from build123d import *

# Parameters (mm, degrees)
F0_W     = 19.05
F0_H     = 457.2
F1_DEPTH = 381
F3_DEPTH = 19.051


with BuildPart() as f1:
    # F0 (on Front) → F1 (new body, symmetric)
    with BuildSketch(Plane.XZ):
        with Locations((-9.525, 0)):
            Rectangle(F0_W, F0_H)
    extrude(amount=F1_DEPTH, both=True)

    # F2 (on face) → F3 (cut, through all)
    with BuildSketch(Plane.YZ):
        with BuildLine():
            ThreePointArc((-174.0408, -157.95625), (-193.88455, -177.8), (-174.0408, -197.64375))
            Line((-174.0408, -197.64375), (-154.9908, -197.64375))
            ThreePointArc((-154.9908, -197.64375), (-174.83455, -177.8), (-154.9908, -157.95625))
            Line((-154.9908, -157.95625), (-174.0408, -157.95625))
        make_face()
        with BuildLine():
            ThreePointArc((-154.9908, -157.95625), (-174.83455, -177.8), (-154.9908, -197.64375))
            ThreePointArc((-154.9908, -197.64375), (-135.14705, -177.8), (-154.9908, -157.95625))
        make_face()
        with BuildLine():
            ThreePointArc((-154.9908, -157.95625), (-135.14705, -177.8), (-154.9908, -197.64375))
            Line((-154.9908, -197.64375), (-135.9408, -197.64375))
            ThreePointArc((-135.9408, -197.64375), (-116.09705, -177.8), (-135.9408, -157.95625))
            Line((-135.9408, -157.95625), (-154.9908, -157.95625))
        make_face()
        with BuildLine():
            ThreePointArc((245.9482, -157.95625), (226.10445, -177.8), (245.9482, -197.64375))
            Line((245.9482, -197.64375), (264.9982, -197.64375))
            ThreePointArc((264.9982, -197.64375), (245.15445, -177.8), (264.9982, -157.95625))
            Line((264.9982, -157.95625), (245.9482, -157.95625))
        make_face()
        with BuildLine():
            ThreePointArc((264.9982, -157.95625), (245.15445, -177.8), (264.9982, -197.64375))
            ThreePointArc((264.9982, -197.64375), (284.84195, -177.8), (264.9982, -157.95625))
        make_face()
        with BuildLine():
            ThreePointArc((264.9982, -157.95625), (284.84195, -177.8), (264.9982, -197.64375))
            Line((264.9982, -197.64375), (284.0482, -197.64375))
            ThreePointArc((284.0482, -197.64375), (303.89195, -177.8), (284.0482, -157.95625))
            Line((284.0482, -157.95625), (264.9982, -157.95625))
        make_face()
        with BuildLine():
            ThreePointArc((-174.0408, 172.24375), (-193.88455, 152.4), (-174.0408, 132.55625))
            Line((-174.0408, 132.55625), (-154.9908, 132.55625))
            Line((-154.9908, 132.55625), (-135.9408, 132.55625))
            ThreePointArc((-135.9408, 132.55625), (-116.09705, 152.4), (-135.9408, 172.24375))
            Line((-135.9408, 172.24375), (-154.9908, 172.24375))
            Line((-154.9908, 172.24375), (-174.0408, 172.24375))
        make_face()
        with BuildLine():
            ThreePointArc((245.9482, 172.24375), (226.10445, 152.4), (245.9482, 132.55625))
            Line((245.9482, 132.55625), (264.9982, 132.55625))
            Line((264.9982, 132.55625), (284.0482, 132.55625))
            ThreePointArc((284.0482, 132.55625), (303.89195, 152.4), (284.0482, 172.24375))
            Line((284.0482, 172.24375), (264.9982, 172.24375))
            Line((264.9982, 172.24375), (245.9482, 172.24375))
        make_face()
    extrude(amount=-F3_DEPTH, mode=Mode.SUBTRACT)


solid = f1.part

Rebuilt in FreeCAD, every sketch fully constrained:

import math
import FreeCAD as App
import Part
import Sketcher

V = App.Vector
Q = App.Units.Quantity


def add_polygon(sketch, points):
    """Adds a closed chain of lines whose ends are joined by coincident constraints."""
    first, n = sketch.GeometryCount, len(points)
    for a, b in zip(points, points[1:] + points[:1]):
        sketch.addGeometry(Part.LineSegment(App.Vector(*a, 0), App.Vector(*b, 0)), False)
    for i in range(n):
        sketch.addConstraint(Sketcher.Constraint("Coincident", first + i, 2, first + (i + 1) % n, 1))

doc = App.newDocument("Part")
body = doc.addObject("PartDesign::Body", "Body")

# Sketch on XZ plane
sketch1 = body.newObject("Sketcher::SketchObject", "Sketch")
sketch1.AttachmentSupport = (doc.getObject("XZ_Plane"), [""])
sketch1.MapMode = "FlatFace"
add_polygon(sketch1, [(-19, 229), (-19, -229), (0, -229), (0, 229)])  # lines 0-3
sketch1.addConstraint([
    Sketcher.Constraint("Vertical", 0),
    Sketcher.Constraint("Horizontal", 1),
    Sketcher.Constraint("Vertical", 2),
    Sketcher.Constraint("Horizontal", 3),
    Sketcher.Constraint("Symmetric", 1, 2, 2, 2, -1, 1),
    Sketcher.Constraint("DistanceY", 0, 2, 0, 1, Q("18 in")),
    Sketcher.Constraint("DistanceX", 1, 1, 1, 2, Q("0.75 in")),
])
pad1 = body.newObject("PartDesign::Pad", "Pad")
pad1.Profile = sketch1
pad1.Length = Q("30 in")
pad1.Midplane = True

# Sketch on YZ plane
sketch2 = body.newObject("Sketcher::SketchObject", "Sketch001")
sketch2.AttachmentSupport = (doc.getObject("YZ_Plane"), [""])
sketch2.MapMode = "FlatFace"
sketch2.addGeometry([
    Part.ArcOfCircle(Part.Circle(V(-174, -178, 0), V(0, 0, 1), 20), math.radians(90), math.radians(270)),  # 0
    Part.LineSegment(V(-174, -198, 0), V(-136, -198, 0)),  # 1
    Part.ArcOfCircle(Part.Circle(V(-136, -178, 0), V(0, 0, 1), 20), math.radians(-90), math.radians(90)),  # 2
    Part.LineSegment(V(-136, -158, 0), V(-174, -158, 0)),  # 3
    Part.ArcOfCircle(Part.Circle(V(246, -178, 0), V(0, 0, 1), 20), math.radians(90), math.radians(270)),  # 4
    Part.LineSegment(V(246, -198, 0), V(284, -198, 0)),  # 5
    Part.ArcOfCircle(Part.Circle(V(284, -178, 0), V(0, 0, 1), 20), math.radians(-90), math.radians(90)),  # 6
    Part.LineSegment(V(284, -158, 0), V(246, -158, 0)),  # 7
    Part.ArcOfCircle(Part.Circle(V(-174, 152, 0), V(0, 0, 1), 20), math.radians(90), math.radians(270)),  # 8
    Part.LineSegment(V(-174, 133, 0), V(-136, 133, 0)),  # 9
    Part.ArcOfCircle(Part.Circle(V(-136, 152, 0), V(0, 0, 1), 20), math.radians(-90), math.radians(90)),  # 10
    Part.LineSegment(V(-136, 172, 0), V(-174, 172, 0)),  # 11
    Part.ArcOfCircle(Part.Circle(V(246, 152, 0), V(0, 0, 1), 20), math.radians(90), math.radians(270)),  # 12
    Part.LineSegment(V(246, 133, 0), V(284, 133, 0)),  # 13
    Part.ArcOfCircle(Part.Circle(V(284, 152, 0), V(0, 0, 1), 20), math.radians(-90), math.radians(90)),  # 14
    Part.LineSegment(V(284, 172, 0), V(246, 172, 0)),  # 15
], False)
sketch2.addConstraint([
    Sketcher.Constraint("Tangent", 0, 2, 1, 1),
    Sketcher.Constraint("Tangent", 1, 2, 2, 1),
    Sketcher.Constraint("Tangent", 2, 2, 3, 1),
    Sketcher.Constraint("Tangent", 3, 2, 0, 1),
    Sketcher.Constraint("Tangent", 4, 2, 5, 1),
    Sketcher.Constraint("Tangent", 5, 2, 6, 1),
    Sketcher.Constraint("Tangent", 6, 2, 7, 1),
    Sketcher.Constraint("Tangent", 7, 2, 4, 1),
    Sketcher.Constraint("Tangent", 8, 2, 9, 1),
    Sketcher.Constraint("Tangent", 9, 2, 10, 1),
    Sketcher.Constraint("Tangent", 10, 2, 11, 1),
    Sketcher.Constraint("Tangent", 11, 2, 8, 1),
    Sketcher.Constraint("Tangent", 12, 2, 13, 1),
    Sketcher.Constraint("Tangent", 13, 2, 14, 1),
    Sketcher.Constraint("Tangent", 14, 2, 15, 1),
    Sketcher.Constraint("Tangent", 15, 2, 12, 1),
    Sketcher.Constraint("Horizontal", 1),
    Sketcher.Constraint("Horizontal", 3),
    Sketcher.Constraint("Horizontal", 5),
    Sketcher.Constraint("Horizontal", 7),
    Sketcher.Constraint("Horizontal", 9),
    Sketcher.Constraint("Horizontal", 11),
    Sketcher.Constraint("Horizontal", 13),
    Sketcher.Constraint("Horizontal", 15),
    Sketcher.Constraint("Equal", 2, 4),
    Sketcher.Constraint("Equal", 6, 8),
    Sketcher.Constraint("Equal", 10, 12),
    Sketcher.Constraint("Horizontal", 2, 3, 4, 3),
    Sketcher.Constraint("Horizontal", 10, 3, 12, 3),
    Sketcher.Constraint("Vertical", 0, 3, 8, 3),
    Sketcher.Constraint("Vertical", 2, 3, 10, 3),
    Sketcher.Constraint("Vertical", 4, 3, 12, 3),
    Sketcher.Constraint("Vertical", 6, 3, 14, 3),
    Sketcher.Constraint("Equal", 3, 5),
    Sketcher.Constraint("DistanceX", 1, 1, 1, 2, Q("1.5 in")),
    Sketcher.Constraint("DistanceY", 0, 3, -1, 1, Q("7 in")),
    Sketcher.Constraint("DistanceY", -1, 1, 8, 3, Q("6 in")),
    Sketcher.Constraint("Radius", 0, Q("0.78125 in")),
    Sketcher.Constraint("DistanceX", 0, 3, -1, 1, Q("6.852 in")),
    Sketcher.Constraint("DistanceX", -1, 1, 4, 3, Q("9.683 in")),
])
pocket1 = body.newObject("PartDesign::Pocket", "Pocket")
pocket1.Profile = sketch2
pocket1.Type = "ThroughAll"

doc.recompute()
